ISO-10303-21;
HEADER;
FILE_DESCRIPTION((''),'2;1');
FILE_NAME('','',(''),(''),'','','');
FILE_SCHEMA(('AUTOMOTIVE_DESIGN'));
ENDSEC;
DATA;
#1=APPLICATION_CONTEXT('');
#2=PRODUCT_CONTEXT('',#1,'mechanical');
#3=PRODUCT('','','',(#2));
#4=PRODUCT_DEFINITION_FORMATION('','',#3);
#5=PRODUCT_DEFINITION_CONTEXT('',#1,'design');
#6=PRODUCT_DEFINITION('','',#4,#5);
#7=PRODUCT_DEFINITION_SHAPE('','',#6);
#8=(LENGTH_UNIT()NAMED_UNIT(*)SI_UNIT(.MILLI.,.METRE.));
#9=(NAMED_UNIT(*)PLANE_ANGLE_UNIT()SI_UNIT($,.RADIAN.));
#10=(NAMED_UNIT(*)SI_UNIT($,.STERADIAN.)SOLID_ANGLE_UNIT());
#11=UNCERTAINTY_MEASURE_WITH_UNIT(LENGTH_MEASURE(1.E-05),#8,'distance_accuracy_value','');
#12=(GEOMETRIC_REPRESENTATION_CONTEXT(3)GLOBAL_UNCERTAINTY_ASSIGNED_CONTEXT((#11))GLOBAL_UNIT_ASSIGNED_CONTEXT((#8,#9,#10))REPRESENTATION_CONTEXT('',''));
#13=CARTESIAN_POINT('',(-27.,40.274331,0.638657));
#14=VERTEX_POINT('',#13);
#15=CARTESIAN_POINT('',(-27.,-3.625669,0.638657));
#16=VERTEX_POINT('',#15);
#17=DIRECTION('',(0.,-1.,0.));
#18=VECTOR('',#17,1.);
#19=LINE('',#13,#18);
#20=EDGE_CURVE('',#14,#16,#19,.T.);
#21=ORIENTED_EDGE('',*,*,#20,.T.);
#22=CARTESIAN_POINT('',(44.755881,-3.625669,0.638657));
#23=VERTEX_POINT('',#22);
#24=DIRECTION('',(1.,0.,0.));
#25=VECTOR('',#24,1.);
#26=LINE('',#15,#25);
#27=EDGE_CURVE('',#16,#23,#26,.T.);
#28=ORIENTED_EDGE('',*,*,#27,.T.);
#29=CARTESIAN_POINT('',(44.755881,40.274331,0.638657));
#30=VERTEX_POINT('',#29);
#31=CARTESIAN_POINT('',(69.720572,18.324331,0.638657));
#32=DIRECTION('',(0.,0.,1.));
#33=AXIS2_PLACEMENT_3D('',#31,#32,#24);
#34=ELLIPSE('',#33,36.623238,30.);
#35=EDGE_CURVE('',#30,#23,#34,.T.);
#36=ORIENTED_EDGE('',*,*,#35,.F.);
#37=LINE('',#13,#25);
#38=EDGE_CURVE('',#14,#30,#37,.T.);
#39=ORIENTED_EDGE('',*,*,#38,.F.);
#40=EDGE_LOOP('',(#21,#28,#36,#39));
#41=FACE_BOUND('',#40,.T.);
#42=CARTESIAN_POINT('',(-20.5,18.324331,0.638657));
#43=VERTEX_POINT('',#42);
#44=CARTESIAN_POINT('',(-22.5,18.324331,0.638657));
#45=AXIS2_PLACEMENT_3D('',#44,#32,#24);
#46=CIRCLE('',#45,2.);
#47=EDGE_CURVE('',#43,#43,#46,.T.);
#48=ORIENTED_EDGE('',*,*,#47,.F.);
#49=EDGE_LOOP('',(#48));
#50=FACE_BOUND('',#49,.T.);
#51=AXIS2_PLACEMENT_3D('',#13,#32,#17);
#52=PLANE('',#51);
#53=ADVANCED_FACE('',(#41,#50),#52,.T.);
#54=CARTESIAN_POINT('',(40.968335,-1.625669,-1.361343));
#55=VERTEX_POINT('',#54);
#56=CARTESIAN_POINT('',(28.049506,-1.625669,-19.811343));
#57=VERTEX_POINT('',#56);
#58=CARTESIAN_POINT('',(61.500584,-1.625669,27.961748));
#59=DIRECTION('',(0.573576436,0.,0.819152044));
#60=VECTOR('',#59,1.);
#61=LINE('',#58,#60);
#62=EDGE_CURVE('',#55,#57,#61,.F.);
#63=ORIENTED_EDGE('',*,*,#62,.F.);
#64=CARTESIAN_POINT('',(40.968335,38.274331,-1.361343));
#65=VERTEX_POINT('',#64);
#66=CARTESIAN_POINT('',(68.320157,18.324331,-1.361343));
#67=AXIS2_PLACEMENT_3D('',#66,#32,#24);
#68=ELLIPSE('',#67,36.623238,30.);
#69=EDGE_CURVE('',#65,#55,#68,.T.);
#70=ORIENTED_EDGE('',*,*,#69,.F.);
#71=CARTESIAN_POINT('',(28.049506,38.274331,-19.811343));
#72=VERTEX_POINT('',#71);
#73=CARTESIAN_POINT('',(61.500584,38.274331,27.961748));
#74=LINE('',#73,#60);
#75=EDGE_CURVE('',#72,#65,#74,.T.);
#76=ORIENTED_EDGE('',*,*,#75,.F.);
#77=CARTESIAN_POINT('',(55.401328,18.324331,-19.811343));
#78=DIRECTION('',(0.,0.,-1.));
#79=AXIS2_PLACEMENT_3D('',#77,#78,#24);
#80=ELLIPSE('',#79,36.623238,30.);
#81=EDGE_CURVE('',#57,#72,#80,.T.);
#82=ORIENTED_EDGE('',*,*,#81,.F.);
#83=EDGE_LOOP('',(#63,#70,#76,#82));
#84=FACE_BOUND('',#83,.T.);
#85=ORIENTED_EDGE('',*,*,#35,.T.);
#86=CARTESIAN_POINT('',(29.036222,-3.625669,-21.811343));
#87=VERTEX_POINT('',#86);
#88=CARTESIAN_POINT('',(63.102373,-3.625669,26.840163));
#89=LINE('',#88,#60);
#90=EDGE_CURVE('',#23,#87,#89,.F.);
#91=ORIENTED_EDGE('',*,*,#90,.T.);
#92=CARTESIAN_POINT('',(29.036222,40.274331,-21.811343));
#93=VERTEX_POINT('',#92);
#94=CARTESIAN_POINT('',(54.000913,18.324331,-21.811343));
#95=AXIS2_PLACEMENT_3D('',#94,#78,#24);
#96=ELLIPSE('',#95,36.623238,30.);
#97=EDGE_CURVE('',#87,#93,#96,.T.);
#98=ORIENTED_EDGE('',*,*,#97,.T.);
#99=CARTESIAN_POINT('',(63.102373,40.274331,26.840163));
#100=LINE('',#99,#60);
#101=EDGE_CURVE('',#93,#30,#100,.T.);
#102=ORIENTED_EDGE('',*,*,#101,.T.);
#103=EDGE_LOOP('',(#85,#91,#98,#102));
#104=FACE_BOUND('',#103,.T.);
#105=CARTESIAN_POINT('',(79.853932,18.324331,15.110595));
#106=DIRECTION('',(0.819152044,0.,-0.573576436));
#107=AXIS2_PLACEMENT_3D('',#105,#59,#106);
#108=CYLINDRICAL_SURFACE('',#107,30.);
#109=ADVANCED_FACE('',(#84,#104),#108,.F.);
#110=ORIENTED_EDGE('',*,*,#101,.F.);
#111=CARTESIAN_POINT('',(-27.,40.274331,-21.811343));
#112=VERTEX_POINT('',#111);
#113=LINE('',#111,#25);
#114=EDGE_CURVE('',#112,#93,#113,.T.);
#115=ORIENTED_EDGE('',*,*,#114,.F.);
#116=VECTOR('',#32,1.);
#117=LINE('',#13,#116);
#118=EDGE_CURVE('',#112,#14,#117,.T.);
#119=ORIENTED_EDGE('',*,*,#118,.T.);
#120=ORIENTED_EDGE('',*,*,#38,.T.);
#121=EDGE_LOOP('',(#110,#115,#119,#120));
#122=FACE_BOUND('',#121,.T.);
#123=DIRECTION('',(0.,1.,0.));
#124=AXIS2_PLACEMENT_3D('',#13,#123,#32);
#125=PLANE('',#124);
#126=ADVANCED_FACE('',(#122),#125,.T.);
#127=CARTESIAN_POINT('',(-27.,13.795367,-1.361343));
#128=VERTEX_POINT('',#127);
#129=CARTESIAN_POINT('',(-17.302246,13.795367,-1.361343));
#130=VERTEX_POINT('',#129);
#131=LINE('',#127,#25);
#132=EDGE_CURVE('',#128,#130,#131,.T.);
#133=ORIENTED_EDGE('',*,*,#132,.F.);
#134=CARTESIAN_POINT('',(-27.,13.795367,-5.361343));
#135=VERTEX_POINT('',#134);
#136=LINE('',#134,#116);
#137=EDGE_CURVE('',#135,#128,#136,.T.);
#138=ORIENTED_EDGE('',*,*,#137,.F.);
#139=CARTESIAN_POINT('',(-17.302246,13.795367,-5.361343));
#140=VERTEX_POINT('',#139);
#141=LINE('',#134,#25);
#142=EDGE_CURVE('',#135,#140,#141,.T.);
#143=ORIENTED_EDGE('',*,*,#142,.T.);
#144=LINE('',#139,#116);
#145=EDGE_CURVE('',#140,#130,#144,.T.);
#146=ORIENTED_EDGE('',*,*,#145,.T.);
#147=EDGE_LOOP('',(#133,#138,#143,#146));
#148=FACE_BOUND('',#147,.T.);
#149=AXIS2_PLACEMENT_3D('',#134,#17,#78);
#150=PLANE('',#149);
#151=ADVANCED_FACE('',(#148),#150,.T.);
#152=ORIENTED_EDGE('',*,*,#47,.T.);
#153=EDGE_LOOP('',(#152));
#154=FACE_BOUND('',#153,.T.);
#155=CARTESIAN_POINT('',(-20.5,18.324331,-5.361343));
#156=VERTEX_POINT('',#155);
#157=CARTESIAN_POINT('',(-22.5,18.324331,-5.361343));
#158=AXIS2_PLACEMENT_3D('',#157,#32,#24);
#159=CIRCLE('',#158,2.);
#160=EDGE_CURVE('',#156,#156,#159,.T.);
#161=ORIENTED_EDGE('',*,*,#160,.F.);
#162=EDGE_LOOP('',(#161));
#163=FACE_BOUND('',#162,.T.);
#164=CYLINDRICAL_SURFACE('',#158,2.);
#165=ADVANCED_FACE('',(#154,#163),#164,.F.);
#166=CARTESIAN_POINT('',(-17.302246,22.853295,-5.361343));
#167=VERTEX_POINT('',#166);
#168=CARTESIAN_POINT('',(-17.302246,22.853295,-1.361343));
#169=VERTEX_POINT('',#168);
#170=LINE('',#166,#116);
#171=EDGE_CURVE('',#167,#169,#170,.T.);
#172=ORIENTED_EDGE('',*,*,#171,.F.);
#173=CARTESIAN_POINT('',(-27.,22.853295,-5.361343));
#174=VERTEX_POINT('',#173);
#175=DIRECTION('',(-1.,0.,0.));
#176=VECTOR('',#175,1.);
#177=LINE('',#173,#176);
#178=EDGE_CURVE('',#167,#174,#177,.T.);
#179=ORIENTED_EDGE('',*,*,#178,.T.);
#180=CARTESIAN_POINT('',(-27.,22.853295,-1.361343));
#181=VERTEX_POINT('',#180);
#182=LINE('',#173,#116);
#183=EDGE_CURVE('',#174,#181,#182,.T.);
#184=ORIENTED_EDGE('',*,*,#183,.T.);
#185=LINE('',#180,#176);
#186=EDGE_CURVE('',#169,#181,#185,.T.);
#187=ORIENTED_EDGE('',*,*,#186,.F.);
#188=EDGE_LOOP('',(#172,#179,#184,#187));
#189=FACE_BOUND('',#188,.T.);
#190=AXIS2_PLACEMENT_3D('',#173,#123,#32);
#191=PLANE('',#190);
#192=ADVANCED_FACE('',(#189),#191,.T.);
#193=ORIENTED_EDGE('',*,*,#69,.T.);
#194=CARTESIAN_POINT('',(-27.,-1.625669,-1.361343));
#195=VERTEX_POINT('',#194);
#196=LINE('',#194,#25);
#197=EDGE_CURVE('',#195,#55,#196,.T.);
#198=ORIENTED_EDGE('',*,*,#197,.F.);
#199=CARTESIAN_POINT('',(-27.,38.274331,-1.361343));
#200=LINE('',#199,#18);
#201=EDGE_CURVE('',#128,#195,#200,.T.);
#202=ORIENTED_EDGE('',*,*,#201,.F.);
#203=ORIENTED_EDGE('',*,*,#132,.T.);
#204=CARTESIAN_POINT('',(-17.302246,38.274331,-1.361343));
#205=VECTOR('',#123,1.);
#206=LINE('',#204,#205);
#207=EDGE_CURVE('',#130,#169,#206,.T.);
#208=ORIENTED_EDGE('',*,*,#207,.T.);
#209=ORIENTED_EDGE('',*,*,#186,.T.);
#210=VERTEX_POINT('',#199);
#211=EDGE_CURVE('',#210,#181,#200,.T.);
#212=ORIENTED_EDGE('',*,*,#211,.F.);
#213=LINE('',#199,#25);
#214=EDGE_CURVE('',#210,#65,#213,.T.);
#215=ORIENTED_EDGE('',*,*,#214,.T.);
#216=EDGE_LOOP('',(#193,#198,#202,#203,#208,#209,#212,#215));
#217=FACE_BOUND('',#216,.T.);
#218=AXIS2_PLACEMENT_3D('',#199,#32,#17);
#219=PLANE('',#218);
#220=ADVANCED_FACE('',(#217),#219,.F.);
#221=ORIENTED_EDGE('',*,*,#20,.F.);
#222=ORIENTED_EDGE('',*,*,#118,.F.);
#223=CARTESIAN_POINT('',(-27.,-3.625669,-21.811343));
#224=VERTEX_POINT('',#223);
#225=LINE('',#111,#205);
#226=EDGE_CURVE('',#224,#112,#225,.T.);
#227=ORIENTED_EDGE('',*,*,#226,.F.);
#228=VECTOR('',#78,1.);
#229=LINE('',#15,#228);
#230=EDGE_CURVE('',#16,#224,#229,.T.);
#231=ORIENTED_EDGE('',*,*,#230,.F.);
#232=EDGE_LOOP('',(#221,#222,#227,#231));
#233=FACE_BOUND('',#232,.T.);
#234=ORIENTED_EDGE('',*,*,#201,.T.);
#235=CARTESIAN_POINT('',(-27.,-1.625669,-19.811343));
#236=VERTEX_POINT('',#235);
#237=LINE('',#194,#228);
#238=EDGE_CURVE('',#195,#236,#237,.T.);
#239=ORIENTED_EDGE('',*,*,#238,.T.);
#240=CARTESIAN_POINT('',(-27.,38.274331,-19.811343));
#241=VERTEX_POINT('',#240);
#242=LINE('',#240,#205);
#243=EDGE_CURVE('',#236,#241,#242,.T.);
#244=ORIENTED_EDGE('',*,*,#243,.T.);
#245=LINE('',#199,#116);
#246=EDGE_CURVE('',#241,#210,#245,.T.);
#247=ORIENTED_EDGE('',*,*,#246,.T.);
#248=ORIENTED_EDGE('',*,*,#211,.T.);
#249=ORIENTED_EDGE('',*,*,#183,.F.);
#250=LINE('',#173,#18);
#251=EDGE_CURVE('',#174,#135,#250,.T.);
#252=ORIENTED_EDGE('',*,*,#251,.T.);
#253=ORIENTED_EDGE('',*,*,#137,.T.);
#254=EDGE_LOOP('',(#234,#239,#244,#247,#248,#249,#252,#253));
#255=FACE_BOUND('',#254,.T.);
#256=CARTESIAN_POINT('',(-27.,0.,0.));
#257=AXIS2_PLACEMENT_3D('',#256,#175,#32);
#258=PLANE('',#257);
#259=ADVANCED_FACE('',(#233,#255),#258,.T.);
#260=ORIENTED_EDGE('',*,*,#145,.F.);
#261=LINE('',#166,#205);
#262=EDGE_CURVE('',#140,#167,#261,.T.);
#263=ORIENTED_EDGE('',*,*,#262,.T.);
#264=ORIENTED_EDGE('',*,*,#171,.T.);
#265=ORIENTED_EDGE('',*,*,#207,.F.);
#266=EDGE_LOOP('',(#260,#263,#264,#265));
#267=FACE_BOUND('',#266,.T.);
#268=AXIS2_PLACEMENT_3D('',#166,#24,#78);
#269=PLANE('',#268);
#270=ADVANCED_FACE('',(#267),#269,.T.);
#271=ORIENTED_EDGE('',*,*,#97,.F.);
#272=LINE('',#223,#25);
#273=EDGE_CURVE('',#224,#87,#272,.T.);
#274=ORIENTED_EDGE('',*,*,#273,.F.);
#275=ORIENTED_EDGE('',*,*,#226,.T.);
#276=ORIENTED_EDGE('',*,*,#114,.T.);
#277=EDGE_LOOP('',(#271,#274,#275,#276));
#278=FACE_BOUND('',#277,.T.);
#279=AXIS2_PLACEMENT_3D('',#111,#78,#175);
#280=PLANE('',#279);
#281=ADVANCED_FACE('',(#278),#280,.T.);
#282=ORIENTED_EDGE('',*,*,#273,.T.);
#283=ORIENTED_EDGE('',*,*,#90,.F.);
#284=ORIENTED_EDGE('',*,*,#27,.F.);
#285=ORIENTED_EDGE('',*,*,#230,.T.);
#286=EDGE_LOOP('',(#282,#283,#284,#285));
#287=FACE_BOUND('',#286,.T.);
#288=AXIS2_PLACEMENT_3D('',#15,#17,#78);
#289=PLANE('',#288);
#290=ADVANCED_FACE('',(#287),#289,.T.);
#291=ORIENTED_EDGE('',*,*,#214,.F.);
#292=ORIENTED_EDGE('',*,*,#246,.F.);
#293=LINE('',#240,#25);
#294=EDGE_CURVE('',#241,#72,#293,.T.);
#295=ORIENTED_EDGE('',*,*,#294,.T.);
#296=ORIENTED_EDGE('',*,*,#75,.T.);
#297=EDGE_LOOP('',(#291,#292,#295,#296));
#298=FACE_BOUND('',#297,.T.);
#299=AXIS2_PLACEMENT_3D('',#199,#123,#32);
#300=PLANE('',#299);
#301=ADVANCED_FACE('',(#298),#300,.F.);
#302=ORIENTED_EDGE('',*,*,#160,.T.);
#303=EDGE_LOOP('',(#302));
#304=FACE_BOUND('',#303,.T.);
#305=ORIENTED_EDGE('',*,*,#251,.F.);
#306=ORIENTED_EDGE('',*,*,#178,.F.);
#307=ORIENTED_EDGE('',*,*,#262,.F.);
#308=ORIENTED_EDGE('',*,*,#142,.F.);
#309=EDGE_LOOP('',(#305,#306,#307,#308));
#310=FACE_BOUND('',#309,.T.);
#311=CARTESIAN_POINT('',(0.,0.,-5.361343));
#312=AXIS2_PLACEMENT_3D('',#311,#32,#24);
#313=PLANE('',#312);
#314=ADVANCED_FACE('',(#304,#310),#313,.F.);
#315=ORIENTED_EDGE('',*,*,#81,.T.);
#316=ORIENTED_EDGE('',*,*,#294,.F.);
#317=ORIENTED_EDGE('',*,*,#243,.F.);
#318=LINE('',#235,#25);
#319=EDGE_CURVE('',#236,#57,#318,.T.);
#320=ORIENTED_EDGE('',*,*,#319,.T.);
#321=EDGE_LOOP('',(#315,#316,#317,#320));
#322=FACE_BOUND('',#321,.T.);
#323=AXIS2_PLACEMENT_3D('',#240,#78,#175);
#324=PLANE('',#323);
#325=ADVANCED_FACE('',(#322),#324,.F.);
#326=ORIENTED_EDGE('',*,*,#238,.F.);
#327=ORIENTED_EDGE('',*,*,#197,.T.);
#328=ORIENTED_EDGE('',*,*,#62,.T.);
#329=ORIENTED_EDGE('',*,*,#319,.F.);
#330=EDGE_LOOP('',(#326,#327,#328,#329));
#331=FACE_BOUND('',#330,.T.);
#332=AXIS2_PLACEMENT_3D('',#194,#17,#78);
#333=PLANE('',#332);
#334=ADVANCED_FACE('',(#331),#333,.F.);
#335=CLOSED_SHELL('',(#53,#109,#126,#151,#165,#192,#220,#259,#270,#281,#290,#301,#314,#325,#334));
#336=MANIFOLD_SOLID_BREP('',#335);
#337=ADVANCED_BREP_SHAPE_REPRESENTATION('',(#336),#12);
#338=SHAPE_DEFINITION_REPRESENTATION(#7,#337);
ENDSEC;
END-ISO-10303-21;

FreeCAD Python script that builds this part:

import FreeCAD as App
import Part
import Sketcher

V = App.Vector
Q = App.Units.Quantity


def add_polygon(sketch, points):
    """Adds a closed chain of lines whose ends are joined by coincident constraints."""
    first, n = sketch.GeometryCount, len(points)
    for a, b in zip(points, points[1:] + points[:1]):
        sketch.addGeometry(Part.LineSegment(App.Vector(*a, 0), App.Vector(*b, 0)), False)
    for i in range(n):
        sketch.addConstraint(Sketcher.Constraint("Coincident", first + i, 2, first + (i + 1) % n, 1))

doc = App.newDocument("Part")
body = doc.addObject("PartDesign::Body", "Body")

# Sketch on YZ plane
sketch1 = body.newObject("Sketcher::SketchObject", "Sketch")
sketch1.AttachmentSupport = (doc.getObject("YZ_Plane"), [""])
sketch1.MapMode = "FlatFace"
add_polygon(sketch1, [(40, 1), (-4, 1), (-4, -22), (40, -22)])  # lines 0-3
add_polygon(sketch1, [(-2, -20), (-2, -1), (38, -1), (38, -20)])  # lines 4-7
sketch1.addConstraint(Sketcher.Constraint("Horizontal", 0))
sketch1.addConstraint(Sketcher.Constraint("Vertical", 1))
sketch1.addConstraint(Sketcher.Constraint("Horizontal", 2))
sketch1.addConstraint(Sketcher.Constraint("Vertical", 3))
sketch1.addConstraint(Sketcher.Constraint("Vertical", 4))
sketch1.addConstraint(Sketcher.Constraint("Horizontal", 5))
sketch1.addConstraint(Sketcher.Constraint("Vertical", 6))
sketch1.addConstraint(Sketcher.Constraint("Horizontal", 7))
sketch1.addConstraint(Sketcher.Constraint("DistanceX", 0, 2, 0, 1, Q("43.9 mm")))
sketch1.addConstraint(Sketcher.Constraint("DistanceX", 5, 1, 5, 2, Q("39.9 mm")))
sketch1.addConstraint(Sketcher.Constraint("DistanceX", 0, 2, 4, 2, Q("2 mm")))
sketch1.addConstraint(Sketcher.Constraint("DistanceY", 4, 2, 0, 2, Q("2 mm")))
sketch1.addConstraint(Sketcher.Constraint("DistanceY", 2, 2, 6, 2, Q("2 mm")))
sketch1.addConstraint(Sketcher.Constraint("DistanceY", 1, 2, 1, 1, Q("22.45 mm")))
sketch1.addConstraint(Sketcher.Constraint("DistanceX", 0, 2, -1, 1, Q("3.625669 mm")))
sketch1.addConstraint(Sketcher.Constraint("DistanceY", -1, 1, 0, 2, Q("0.638657 mm")))
pad1 = body.newObject("PartDesign::Pad", "Pad")
pad1.Profile = sketch1
pad1.Type = "TwoLengths"
pad1.Length = 60
pad1.Length2 = 27

# Sketch on XZ plane
sketch2 = body.newObject("Sketcher::SketchObject", "Sketch001")
sketch2.AttachmentSupport = (doc.getObject("XZ_Plane"), [""])
sketch2.MapMode = "FlatFace"
sketch2.AttachmentOffset = App.Placement(V(0, 0, -18.324331), App.Rotation())
add_polygon(sketch2, [(80, 15), (55, 32), (13, -28), (38, -45)])  # lines 0-3
sketch2.addGeometry(Part.LineSegment(V(80, 15, 0), V(38, -45, 0)), True)  # axis
sketch2.addConstraint(Sketcher.Constraint("Coincident", 4, 1, 3, 2))
sketch2.addConstraint(Sketcher.Constraint("Coincident", 4, 2, 2, 2))
sketch2.addConstraint(Sketcher.Constraint("Perpendicular", 0, 1))
sketch2.addConstraint(Sketcher.Constraint("Perpendicular", 1, 2))
sketch2.addConstraint(Sketcher.Constraint("Perpendicular", 2, 3))
sketch2.addConstraint(Sketcher.Constraint("Angle", 0, Q("145 deg")))
sketch2.addConstraint(Sketcher.Constraint("Distance", 0, Q("30 mm")))
sketch2.addConstraint(Sketcher.Constraint("DistanceX", -1, 1, 0, 2, Q("55.279371 mm")))
sketch2.addConstraint(Sketcher.Constraint("DistanceY", -1, 1, 0, 2, Q("32.317888 mm")))
sketch2.addConstraint(Sketcher.Constraint("DistanceX", -1, 1, 1, 2, Q("13.190029 mm")))
groove = body.newObject("PartDesign::Groove", "Groove")
groove.Profile = sketch2
groove.ReferenceAxis = (sketch2, ["Axis0"])
groove.Angle = 360

# Sketch on XY plane
sketch3 = body.newObject("Sketcher::SketchObject", "Sketch002")
sketch3.AttachmentSupport = (doc.getObject("XY_Plane"), [""])
sketch3.MapMode = "FlatFace"
sketch3.AttachmentOffset = App.Placement(V(0, 0, 0.638657), App.Rotation())
add_polygon(sketch3, [(-27, 22.9), (-27, 13.8), (-17.3, 13.8), (-17.3, 22.9)])  # lines 0-3
sketch3.addGeometry(Part.Circle(V(-22.5, 18.3, 0), V(0, 0, 1), 2), False)  # 4
sketch3.addConstraint(Sketcher.Constraint("Vertical", 0))
sketch3.addConstraint(Sketcher.Constraint("Horizontal", 1))
sketch3.addConstraint(Sketcher.Constraint("Vertical", 2))
sketch3.addConstraint(Sketcher.Constraint("Horizontal", 3))
sketch3.addConstraint(Sketcher.Constraint("Diameter", 4, Q("4 mm")))
sketch3.addConstraint(Sketcher.Constraint("DistanceX", 0, 2, -1, 1, Q("27 mm")))
sketch3.addConstraint(Sketcher.Constraint("DistanceX", 4, 3, -1, 1, Q("22.5 mm")))
sketch3.addConstraint(Sketcher.Constraint("DistanceY", 0, 2, 0, 1, Q("9.057928 mm")))
sketch3.addConstraint(Sketcher.Constraint("DistanceX", 1, 1, 1, 2, Q("9.697754 mm")))
sketch3.addConstraint(Sketcher.Constraint("DistanceY", -1, 1, 4, 3, Q("18.324331 mm")))
sketch3.addConstraint(Sketcher.Constraint("DistanceY", -1, 1, 0, 2, Q("13.795367 mm")))
pad2 = body.newObject("PartDesign::Pad", "Pad001")
pad2.Profile = sketch3
pad2.Length = 6
pad2.Reversed = True

# Sketch on XY plane
sketch4 = body.newObject("Sketcher::SketchObject", "Sketch003")
sketch4.AttachmentSupport = (doc.getObject("XY_Plane"), [""])
sketch4.MapMode = "FlatFace"
sketch4.AttachmentOffset = App.Placement(V(0, 0, 0.638657), App.Rotation())
sketch4.addGeometry(Part.Circle(V(-22.5, 18.3, 0), V(0, 0, 1), 2), False)
sketch4.addConstraint(Sketcher.Constraint("Diameter", 0, Q("4 mm")))
sketch4.addConstraint(Sketcher.Constraint("DistanceX", 0, 3, -1, 1, Q("22.5 mm")))
sketch4.addConstraint(Sketcher.Constraint("DistanceY", -1, 1, 0, 3, Q("18.324331 mm")))
pocket1 = body.newObject("PartDesign::Pocket", "Pocket")
pocket1.Profile = sketch4
pocket1.Type = "UpToFirst"

doc.recompute()
